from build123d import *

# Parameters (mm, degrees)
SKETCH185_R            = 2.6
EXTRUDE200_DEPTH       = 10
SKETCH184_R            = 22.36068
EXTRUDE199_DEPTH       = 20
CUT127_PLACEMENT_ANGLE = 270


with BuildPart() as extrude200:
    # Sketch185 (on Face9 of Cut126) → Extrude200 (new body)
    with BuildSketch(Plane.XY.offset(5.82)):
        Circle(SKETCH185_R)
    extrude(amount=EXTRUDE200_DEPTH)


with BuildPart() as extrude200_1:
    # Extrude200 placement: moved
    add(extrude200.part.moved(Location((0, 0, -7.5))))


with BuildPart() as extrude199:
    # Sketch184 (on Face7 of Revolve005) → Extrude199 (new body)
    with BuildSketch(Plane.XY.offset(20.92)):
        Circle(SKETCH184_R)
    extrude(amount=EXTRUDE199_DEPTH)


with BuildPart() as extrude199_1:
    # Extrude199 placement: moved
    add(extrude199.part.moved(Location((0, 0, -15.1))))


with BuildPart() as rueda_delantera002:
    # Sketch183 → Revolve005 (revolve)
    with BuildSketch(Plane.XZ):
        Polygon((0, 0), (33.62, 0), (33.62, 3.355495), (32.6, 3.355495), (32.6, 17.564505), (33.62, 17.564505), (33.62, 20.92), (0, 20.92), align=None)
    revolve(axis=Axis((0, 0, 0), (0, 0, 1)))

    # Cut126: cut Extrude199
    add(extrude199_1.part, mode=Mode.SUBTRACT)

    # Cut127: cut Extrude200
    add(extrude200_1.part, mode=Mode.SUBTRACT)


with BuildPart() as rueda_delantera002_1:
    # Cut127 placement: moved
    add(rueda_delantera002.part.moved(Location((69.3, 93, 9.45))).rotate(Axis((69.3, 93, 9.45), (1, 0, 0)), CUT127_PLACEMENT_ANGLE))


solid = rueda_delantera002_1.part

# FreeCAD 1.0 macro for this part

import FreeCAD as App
import Part
import Sketcher

V = App.Vector
Q = App.Units.Quantity


def add_polygon(sketch, points):
    """Adds a closed chain of lines whose ends are joined by coincident constraints."""
    first, n = sketch.GeometryCount, len(points)
    for a, b in zip(points, points[1:] + points[:1]):
        sketch.addGeometry(Part.LineSegment(App.Vector(*a, 0), App.Vector(*b, 0)), False)
    for i in range(n):
        sketch.addConstraint(Sketcher.Constraint("Coincident", first + i, 2, first + (i + 1) % n, 1))

doc = App.newDocument("Part")
body = doc.addObject("PartDesign::Body", "Body")

# Sketch on XY plane
sketch1 = body.newObject("Sketcher::SketchObject", "Sketch")
sketch1.AttachmentSupport = (doc.getObject("XY_Plane"), [""])
sketch1.MapMode = "FlatFace"
sketch1.AttachmentOffset = App.Placement(V(0, 0, 5.82), App.Rotation())
sketch1.addGeometry(Part.Circle(V(0, 0, 0), V(0, 0, 1), 2.6), False)
sketch1.addConstraint([
    Sketcher.Constraint("Coincident", 0, 3, -1, 1),
    Sketcher.Constraint("Diameter", 0, Q("5.2 mm")),
])
pad1 = body.newObject("PartDesign::Pad", "Pad")
pad1.Profile = sketch1
pad1.Length = 10
body2 = doc.addObject("PartDesign::Body", "Body001")
doc.recompute()

body.Placement = App.Placement(V(0, 0, -7.5), App.Rotation(V(0, 0, 1), 0))
boolean = body2.newObject("PartDesign::Boolean", "Boolean")
boolean.Type = "Fuse"
boolean.addObjects([body])
body3 = doc.addObject("PartDesign::Body", "Body002")

# Sketch on XY plane
sketch2 = body3.newObject("Sketcher::SketchObject", "Sketch001")
sketch2.AttachmentSupport = (doc.getObject("XY_Plane002"), [""])
sketch2.MapMode = "FlatFace"
sketch2.AttachmentOffset = App.Placement(V(0, 0, 20.92), App.Rotation())
sketch2.addGeometry(Part.Circle(V(0, 0, 0), V(0, 0, 1), 22.36068), False)
sketch2.addConstraint([
    Sketcher.Constraint("Coincident", 0, 3, -1, 1),
    Sketcher.Constraint("Diameter", 0, Q("44.72136 mm")),
])
pad2 = body3.newObject("PartDesign::Pad", "Pad001")
pad2.Profile = sketch2
pad2.Length = 20
body4 = doc.addObject("PartDesign::Body", "Body003")
doc.recompute()

body3.Placement = App.Placement(V(0, 0, -15.1), App.Rotation(V(0, 0, 1), 0))
boolean2 = body4.newObject("PartDesign::Boolean", "Boolean001")
boolean2.Type = "Fuse"
boolean2.addObjects([body3])
body5 = doc.addObject("PartDesign::Body", "Body004")

# Sketch on XZ plane
sketch3 = body5.newObject("Sketcher::SketchObject", "Sketch002")
sketch3.AttachmentSupport = (doc.getObject("XZ_Plane004"), [""])
sketch3.MapMode = "FlatFace"
add_polygon(sketch3, [(0, 0), (33.62, 0), (33.62, 3.355495), (32.6, 3.355495), (32.6, 17.564505), (33.62, 17.564505), (33.62, 20.92), (0, 20.92)])  # lines 0-7
sketch3.addConstraint([
    Sketcher.Constraint("Horizontal", 0),
    Sketcher.Constraint("Vertical", 1),
    Sketcher.Constraint("Horizontal", 2),
    Sketcher.Constraint("Vertical", 3),
    Sketcher.Constraint("Horizontal", 4),
    Sketcher.Constraint("Vertical", 5),
    Sketcher.Constraint("Horizontal", 6),
    Sketcher.Constraint("Vertical", 7),
    Sketcher.Constraint("Coincident", 7, 2, -1, 1),
    Sketcher.Constraint("Vertical", 1, 2, 4, 2),
    Sketcher.Constraint("Equal", 1, 5),
    Sketcher.Constraint("DistanceX", 0, 1, 0, 2, Q("33.62 mm")),
    Sketcher.Constraint("DistanceX", 2, 2, 2, 1, Q("1.02 mm")),
    Sketcher.Constraint("DistanceY", 7, 2, 7, 1, Q("20.92 mm")),
    Sketcher.Constraint("DistanceY", 3, 1, 3, 2, Q("14.20901 mm")),
])
revolution = body5.newObject("PartDesign::Revolution", "Revolution")
revolution.Profile = sketch3
revolution.ReferenceAxis = (sketch3, ["V_Axis"])
revolution.Angle = 360
doc.recompute()

boolean3 = body5.newObject("PartDesign::Boolean", "Boolean002")
boolean3.Type = "Cut"
boolean3.addObjects([body4])
doc.recompute()

boolean4 = body5.newObject("PartDesign::Boolean", "Boolean003")
boolean4.Type = "Cut"
boolean4.addObjects([body2])
body6 = doc.addObject("PartDesign::Body", "Body005")
doc.recompute()

body5.Placement = App.Placement(V(69.3, 93, 9.45), App.Rotation(V(1, 0, 0), 270))
boolean5 = body6.newObject("PartDesign::Boolean", "Boolean004")
boolean5.Type = "Fuse"
boolean5.addObjects([body5])

doc.recompute()
